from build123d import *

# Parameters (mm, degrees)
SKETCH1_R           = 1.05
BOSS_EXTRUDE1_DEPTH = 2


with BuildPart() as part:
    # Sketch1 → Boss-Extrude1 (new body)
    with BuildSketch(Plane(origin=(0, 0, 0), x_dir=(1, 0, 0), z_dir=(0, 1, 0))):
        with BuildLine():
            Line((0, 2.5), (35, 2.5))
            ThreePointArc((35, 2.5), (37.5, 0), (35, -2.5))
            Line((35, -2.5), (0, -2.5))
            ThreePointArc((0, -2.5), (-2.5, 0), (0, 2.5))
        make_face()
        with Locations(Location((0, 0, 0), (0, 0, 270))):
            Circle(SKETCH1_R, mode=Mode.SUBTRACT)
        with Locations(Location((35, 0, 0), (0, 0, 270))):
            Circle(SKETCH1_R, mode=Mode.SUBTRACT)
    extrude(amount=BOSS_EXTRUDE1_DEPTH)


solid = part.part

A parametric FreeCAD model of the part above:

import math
import FreeCAD as App
import Part
import Sketcher
from FreeCAD import Vector

doc = App.newDocument("Part")
body = doc.addObject("PartDesign::Body", "Body")

sketch1 = doc.addObject("Sketcher::SketchObject", "Sketch")
body.addObject(sketch1)
sketch1.AttachmentSupport = (doc.XZ_Plane, [""])
sketch1.MapMode = "FlatFace"
sketch1.addGeometry([
    Part.LineSegment(Vector(35, -2.5, 0), Vector(0, -2.5, 0)),
    Part.ArcOfCircle(Part.Circle(Vector(0, 0, 0), Vector(0, 0, 1), 2.5), math.radians(90), math.radians(270)),
    Part.LineSegment(Vector(0, 2.5, 0), Vector(35, 2.5, 0)),
    Part.ArcOfCircle(Part.Circle(Vector(35, 0, 0), Vector(0, 0, 1), 2.5), math.radians(-90), math.radians(90)),
    Part.Circle(Vector(35, 0, 0), Vector(0, 0, 1), 1.1),
    Part.Circle(Vector(0, 0, 0), Vector(0, 0, 1), 1.1),
], False)
sketch1.addConstraint([
    Sketcher.Constraint("Tangent", 0, 2, 1, 2),
    Sketcher.Constraint("Tangent", 1, 1, 2, 1),
    Sketcher.Constraint("Tangent", 2, 2, 3, 2),
    Sketcher.Constraint("Tangent", 3, 1, 0, 1),
    Sketcher.Constraint("Horizontal", 0),
    Sketcher.Constraint("Horizontal", 2),
    Sketcher.Constraint("Coincident", 1, 3, -1, 1),
    Sketcher.Constraint("Coincident", 5, 3, -1, 1),
    Sketcher.Constraint("Coincident", 4, 3, 3, 3),
    Sketcher.Constraint("Equal", 4, 5),
    Sketcher.Constraint("Diameter", 4, 2.1),
    Sketcher.Constraint("Radius", 1, 2.5),
    Sketcher.Constraint("DistanceX", 0, 2, 0, 1, 35.0),
])
pad1 = doc.addObject("PartDesign::Pad", "Pad")
body.addObject(pad1)
pad1.Profile = sketch1
pad1.Length = 2
pad1.Reversed = True

doc.recompute()
